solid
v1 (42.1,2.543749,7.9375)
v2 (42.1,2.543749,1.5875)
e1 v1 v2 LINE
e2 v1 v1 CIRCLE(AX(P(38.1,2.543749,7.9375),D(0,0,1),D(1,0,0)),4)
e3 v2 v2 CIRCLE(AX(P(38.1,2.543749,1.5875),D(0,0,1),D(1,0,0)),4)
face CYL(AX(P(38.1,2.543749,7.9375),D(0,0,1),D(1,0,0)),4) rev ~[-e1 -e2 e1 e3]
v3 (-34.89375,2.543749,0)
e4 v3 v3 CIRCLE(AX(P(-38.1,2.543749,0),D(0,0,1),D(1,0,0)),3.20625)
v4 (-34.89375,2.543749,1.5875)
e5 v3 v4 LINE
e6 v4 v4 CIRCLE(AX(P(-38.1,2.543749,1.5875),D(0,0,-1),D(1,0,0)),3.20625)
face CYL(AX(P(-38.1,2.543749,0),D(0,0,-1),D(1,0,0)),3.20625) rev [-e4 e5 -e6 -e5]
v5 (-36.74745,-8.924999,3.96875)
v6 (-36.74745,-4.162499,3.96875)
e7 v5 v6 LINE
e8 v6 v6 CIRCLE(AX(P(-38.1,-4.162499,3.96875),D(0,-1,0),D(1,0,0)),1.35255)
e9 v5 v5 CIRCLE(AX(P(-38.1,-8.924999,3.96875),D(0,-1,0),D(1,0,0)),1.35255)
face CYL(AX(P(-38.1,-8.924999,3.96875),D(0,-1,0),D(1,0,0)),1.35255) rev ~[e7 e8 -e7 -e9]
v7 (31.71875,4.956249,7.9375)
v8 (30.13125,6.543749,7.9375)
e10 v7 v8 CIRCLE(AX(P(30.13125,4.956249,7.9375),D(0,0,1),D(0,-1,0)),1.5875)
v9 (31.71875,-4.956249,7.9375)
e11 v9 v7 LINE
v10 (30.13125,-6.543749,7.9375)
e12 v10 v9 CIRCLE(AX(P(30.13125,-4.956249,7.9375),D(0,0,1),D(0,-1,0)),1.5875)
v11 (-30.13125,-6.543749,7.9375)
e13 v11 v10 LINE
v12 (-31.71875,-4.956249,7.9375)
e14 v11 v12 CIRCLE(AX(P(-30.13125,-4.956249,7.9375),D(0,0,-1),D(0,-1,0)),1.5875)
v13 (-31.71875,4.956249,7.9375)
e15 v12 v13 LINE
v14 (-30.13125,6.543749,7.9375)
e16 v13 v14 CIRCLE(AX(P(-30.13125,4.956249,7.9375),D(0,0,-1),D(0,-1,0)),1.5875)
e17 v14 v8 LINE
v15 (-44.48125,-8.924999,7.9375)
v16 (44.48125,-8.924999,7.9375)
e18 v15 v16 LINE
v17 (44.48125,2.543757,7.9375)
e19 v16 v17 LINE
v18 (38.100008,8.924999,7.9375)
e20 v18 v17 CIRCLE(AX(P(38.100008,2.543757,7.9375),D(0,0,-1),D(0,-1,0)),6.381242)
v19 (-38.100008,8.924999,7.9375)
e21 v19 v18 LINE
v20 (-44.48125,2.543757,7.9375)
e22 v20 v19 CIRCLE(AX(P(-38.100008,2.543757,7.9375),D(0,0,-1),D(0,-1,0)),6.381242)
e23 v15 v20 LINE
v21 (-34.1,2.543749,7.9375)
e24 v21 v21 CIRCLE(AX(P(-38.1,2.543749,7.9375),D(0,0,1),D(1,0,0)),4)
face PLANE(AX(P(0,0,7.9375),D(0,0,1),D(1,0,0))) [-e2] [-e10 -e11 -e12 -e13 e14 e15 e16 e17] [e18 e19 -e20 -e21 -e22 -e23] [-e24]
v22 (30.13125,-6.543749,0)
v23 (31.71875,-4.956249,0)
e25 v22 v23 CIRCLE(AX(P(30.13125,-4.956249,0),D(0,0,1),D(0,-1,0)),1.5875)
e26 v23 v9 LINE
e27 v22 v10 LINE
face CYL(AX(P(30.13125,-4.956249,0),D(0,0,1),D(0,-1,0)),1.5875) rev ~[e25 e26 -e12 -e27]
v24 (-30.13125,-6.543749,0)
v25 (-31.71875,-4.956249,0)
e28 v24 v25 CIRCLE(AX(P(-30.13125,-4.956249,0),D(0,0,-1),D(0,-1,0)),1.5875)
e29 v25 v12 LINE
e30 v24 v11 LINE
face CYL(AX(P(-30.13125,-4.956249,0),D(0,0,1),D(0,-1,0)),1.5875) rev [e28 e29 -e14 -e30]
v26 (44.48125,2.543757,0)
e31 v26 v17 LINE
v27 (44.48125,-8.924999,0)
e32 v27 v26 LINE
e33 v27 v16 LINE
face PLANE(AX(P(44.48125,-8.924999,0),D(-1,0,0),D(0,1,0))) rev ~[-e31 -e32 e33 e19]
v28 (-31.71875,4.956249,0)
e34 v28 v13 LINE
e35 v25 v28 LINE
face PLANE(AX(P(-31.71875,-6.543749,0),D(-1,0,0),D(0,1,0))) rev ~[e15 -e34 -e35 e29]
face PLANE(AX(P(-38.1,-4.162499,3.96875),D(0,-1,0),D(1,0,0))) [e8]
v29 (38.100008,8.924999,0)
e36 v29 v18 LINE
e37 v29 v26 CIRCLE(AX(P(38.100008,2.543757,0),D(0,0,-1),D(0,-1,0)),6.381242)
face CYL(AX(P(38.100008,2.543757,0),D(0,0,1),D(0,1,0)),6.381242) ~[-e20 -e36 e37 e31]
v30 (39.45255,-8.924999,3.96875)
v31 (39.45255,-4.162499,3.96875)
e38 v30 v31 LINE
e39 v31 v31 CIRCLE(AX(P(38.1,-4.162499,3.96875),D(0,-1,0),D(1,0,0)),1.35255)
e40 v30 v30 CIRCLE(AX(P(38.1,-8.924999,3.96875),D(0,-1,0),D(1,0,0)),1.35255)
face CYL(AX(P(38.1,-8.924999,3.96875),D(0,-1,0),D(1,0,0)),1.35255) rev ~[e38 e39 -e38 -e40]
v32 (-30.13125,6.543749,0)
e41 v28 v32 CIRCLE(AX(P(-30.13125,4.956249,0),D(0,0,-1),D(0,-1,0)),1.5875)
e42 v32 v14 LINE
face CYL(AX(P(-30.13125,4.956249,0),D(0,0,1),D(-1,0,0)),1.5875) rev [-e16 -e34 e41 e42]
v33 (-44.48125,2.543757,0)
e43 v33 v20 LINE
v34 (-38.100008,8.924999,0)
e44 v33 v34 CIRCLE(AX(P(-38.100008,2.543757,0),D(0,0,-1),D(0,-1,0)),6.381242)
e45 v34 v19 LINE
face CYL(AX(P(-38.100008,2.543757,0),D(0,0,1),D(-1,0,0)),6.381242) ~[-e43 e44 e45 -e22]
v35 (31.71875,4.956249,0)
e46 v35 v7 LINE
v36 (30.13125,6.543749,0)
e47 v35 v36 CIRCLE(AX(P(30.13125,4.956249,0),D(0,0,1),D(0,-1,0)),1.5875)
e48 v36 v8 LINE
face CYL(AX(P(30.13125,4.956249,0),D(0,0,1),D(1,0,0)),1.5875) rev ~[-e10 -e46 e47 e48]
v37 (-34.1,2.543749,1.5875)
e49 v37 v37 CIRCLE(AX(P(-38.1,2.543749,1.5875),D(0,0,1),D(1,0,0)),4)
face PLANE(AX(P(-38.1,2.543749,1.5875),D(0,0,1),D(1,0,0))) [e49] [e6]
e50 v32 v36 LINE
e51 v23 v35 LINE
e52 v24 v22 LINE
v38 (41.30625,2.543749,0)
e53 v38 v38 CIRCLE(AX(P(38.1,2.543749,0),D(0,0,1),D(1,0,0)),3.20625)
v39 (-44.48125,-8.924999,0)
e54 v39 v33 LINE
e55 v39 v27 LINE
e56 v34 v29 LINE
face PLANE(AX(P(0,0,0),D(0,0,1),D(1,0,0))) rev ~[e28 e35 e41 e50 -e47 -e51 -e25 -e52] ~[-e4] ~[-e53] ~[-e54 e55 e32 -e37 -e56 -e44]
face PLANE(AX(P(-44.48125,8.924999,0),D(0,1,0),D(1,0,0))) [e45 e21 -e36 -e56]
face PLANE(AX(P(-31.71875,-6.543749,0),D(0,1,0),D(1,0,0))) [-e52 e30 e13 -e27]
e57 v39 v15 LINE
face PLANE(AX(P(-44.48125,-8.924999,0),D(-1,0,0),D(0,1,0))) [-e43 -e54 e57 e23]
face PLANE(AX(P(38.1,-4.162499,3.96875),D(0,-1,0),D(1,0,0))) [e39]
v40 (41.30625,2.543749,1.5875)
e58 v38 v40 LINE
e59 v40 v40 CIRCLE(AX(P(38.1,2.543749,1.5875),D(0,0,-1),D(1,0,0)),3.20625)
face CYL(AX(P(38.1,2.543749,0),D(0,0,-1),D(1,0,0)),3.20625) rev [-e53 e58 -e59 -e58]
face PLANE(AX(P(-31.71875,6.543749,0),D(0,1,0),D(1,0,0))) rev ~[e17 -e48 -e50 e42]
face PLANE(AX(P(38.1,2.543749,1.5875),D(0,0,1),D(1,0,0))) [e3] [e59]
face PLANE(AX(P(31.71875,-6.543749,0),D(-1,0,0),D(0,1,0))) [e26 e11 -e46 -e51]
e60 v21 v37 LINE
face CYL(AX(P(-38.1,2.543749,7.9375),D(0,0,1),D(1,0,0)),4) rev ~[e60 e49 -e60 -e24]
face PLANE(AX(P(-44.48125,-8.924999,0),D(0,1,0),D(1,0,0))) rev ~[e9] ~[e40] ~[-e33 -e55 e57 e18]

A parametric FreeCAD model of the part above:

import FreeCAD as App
import Part
import Sketcher
from FreeCAD import Vector
Q = App.Units.Quantity


def edges_at(feature, points):
    """Names of the edges that pass closest to the given points."""
    edges = feature.Shape.Edges
    near = lambda p: min(range(len(edges)), key=lambda i: edges[i].distToShape(Part.Vertex(*p))[0])
    return sorted({f"Edge{near(p) + 1}" for p in points})


def add_polygon(sketch, points):
    """Adds a closed chain of lines whose ends are joined by coincident constraints."""
    first, n = sketch.GeometryCount, len(points)
    for a, b in zip(points, points[1:] + points[:1]):
        sketch.addGeometry(Part.LineSegment(App.Vector(*a, 0), App.Vector(*b, 0)), False)
    for i in range(n):
        sketch.addConstraint(Sketcher.Constraint("Coincident", first + i, 2, first + (i + 1) % n, 1))

doc = App.newDocument("Part")
params = doc.addObject("Spreadsheet::Sheet", "Params")
for row, (alias, value) in enumerate([
    ("pad1_length", "0.3125 in"),
    ("pocket1_length", "0.25 in"),
    ("pocket2_length", "0.1875 in"),
    ("fillet_radius", "0.0625 in"),
    ("fillet2_radius", "6.381242 mm"),
], start=1):
    params.set(f"A{row}", alias)
    params.set(f"B{row}", "=" + value)
    params.setAlias(f"B{row}", alias)

body = doc.addObject("PartDesign::Body", "Body")

# Sketch on XY plane
sketch1 = body.newObject("Sketcher::SketchObject", "Sketch")
sketch1.AttachmentSupport = (doc.getObject("XY_Plane"), [""])
sketch1.MapMode = "FlatFace"
add_polygon(sketch1, [(-44.5, 8.9), (-44.5, -8.9), (44.5, -8.9), (44.5, 8.9)])  # lines 0-3
sketch1.addGeometry(Part.Circle(Vector(-38.1, 2.5, 0), Vector(0, 0, 1), 3.2), False)  # 4
add_polygon(sketch1, [(31.7, -6.5), (-31.7, -6.5), (-31.7, 6.5), (31.7, 6.5)])  # lines 5-8
sketch1.addGeometry(Part.Circle(Vector(38.1, 2.5, 0), Vector(0, 0, 1), 3.2), False)  # 9
sketch1.addConstraint(Sketcher.Constraint("Vertical", 0))
sketch1.addConstraint(Sketcher.Constraint("Horizontal", 1))
sketch1.addConstraint(Sketcher.Constraint("Vertical", 2))
sketch1.addConstraint(Sketcher.Constraint("Horizontal", 3))
sketch1.addConstraint(Sketcher.Constraint("Horizontal", 5))
sketch1.addConstraint(Sketcher.Constraint("Vertical", 6))
sketch1.addConstraint(Sketcher.Constraint("Horizontal", 7))
sketch1.addConstraint(Sketcher.Constraint("Vertical", 8))
sketch1.addConstraint(Sketcher.Constraint("Equal", 4, 9))
sketch1.addConstraint(Sketcher.Constraint("Symmetric", 0, 2, 2, 2, -1, 1))
sketch1.addConstraint(Sketcher.Constraint("Symmetric", 5, 2, 7, 2, -1, 1))
sketch1.addConstraint(Sketcher.Constraint("Symmetric", 4, 3, 9, 3, -2))
sketch1.addConstraint(Sketcher.Constraint("DistanceX", 4, 3, 9, 3, Q("3 in")))
sketch1.addConstraint(Sketcher.Constraint("DistanceX", 5, 2, 1, 2, Q("3 in")))
sketch1.addConstraint(Sketcher.Constraint("Diameter", 4, 6.4125))
sketch1.addConstraint(Sketcher.Constraint("DistanceY", 0, 2, 5, 2, Q("0.09375 in")))
sketch1.addConstraint(Sketcher.Constraint("DistanceX", 1, 1, 1, 2, 88.9625))
sketch1.addConstraint(Sketcher.Constraint("DistanceY", 0, 2, -1, 1, 8.924999))
sketch1.addConstraint(Sketcher.Constraint("DistanceY", 4, 3, 6, 2, 4.0))
pad1 = body.newObject("PartDesign::Pad", "Pad")
pad1.Profile = sketch1
pad1.setExpression("Length", "Params.pad1_length")

# Sketch on XY plane
sketch2 = body.newObject("Sketcher::SketchObject", "Sketch001")
sketch2.AttachmentSupport = (doc.getObject("XY_Plane"), [""])
sketch2.MapMode = "FlatFace"
sketch2.AttachmentOffset = App.Placement(Vector(0, 0, 0.3125 * 25.4), App.Rotation())
sketch2.addGeometry(Part.Circle(Vector(-38.1, 2.5, 0), Vector(0, 0, 1), 4), False)
sketch2.addGeometry(Part.Circle(Vector(38.1, 2.5, 0), Vector(0, 0, 1), 4), False)
sketch2.addConstraint(Sketcher.Constraint("Equal", 0, 1))
sketch2.addConstraint(Sketcher.Constraint("Symmetric", 0, 3, 1, 3, -2))
sketch2.addConstraint(Sketcher.Constraint("DistanceX", 0, 3, 1, 3, Q("3 in")))
sketch2.addConstraint(Sketcher.Constraint("Diameter", 0, 8.0))
sketch2.addConstraint(Sketcher.Constraint("DistanceY", -1, 1, 0, 3, 2.543749))
pocket1 = body.newObject("PartDesign::Pocket", "Pocket")
pocket1.Profile = sketch2
pocket1.setExpression("Length", "Params.pocket1_length")

# Sketch on XZ plane
sketch3 = body.newObject("Sketcher::SketchObject", "Sketch002")
sketch3.AttachmentSupport = (doc.getObject("XZ_Plane"), [""])
sketch3.MapMode = "FlatFace"
sketch3.AttachmentOffset = App.Placement(Vector(0, 0, 8.924999), App.Rotation())
sketch3.addGeometry(Part.Circle(Vector(-38.1, 4, 0), Vector(0, 0, 1), 1.4), False)
sketch3.addGeometry(Part.Circle(Vector(38.1, 4, 0), Vector(0, 0, 1), 1.4), False)
sketch3.addConstraint(Sketcher.Constraint("Equal", 0, 1))
sketch3.addConstraint(Sketcher.Constraint("Symmetric", 0, 3, 1, 3, -2))
sketch3.addConstraint(Sketcher.Constraint("DistanceX", 0, 3, 1, 3, Q("3 in")))
sketch3.addConstraint(Sketcher.Constraint("Diameter", 0, Q("0.1065 in")))
sketch3.addConstraint(Sketcher.Constraint("DistanceY", -1, 1, 0, 3, Q("0.15625 in")))
pocket2 = body.newObject("PartDesign::Pocket", "Pocket001")
pocket2.Profile = sketch3
pocket2.setExpression("Length", "Params.pocket2_length")
doc.recompute()

fillet = body.newObject("PartDesign::Fillet", "Fillet")
fillet.Base = (pocket2, edges_at(pocket2, [
    (31.719, 6.544, 3.969),
    (31.719, -6.544, 3.969),
    (-31.719, -6.544, 3.969),
    (-31.719, 6.544, 3.969),
]))
fillet.setExpression("Radius", "Params.fillet_radius")
doc.recompute()

fillet2 = body.newObject("PartDesign::Fillet", "Fillet001")
fillet2.Base = (fillet, edges_at(fillet, [(44.481, 8.925, 3.969), (-44.481, 8.925, 3.969)]))
fillet2.setExpression("Radius", "Params.fillet2_radius")

doc.recompute()
